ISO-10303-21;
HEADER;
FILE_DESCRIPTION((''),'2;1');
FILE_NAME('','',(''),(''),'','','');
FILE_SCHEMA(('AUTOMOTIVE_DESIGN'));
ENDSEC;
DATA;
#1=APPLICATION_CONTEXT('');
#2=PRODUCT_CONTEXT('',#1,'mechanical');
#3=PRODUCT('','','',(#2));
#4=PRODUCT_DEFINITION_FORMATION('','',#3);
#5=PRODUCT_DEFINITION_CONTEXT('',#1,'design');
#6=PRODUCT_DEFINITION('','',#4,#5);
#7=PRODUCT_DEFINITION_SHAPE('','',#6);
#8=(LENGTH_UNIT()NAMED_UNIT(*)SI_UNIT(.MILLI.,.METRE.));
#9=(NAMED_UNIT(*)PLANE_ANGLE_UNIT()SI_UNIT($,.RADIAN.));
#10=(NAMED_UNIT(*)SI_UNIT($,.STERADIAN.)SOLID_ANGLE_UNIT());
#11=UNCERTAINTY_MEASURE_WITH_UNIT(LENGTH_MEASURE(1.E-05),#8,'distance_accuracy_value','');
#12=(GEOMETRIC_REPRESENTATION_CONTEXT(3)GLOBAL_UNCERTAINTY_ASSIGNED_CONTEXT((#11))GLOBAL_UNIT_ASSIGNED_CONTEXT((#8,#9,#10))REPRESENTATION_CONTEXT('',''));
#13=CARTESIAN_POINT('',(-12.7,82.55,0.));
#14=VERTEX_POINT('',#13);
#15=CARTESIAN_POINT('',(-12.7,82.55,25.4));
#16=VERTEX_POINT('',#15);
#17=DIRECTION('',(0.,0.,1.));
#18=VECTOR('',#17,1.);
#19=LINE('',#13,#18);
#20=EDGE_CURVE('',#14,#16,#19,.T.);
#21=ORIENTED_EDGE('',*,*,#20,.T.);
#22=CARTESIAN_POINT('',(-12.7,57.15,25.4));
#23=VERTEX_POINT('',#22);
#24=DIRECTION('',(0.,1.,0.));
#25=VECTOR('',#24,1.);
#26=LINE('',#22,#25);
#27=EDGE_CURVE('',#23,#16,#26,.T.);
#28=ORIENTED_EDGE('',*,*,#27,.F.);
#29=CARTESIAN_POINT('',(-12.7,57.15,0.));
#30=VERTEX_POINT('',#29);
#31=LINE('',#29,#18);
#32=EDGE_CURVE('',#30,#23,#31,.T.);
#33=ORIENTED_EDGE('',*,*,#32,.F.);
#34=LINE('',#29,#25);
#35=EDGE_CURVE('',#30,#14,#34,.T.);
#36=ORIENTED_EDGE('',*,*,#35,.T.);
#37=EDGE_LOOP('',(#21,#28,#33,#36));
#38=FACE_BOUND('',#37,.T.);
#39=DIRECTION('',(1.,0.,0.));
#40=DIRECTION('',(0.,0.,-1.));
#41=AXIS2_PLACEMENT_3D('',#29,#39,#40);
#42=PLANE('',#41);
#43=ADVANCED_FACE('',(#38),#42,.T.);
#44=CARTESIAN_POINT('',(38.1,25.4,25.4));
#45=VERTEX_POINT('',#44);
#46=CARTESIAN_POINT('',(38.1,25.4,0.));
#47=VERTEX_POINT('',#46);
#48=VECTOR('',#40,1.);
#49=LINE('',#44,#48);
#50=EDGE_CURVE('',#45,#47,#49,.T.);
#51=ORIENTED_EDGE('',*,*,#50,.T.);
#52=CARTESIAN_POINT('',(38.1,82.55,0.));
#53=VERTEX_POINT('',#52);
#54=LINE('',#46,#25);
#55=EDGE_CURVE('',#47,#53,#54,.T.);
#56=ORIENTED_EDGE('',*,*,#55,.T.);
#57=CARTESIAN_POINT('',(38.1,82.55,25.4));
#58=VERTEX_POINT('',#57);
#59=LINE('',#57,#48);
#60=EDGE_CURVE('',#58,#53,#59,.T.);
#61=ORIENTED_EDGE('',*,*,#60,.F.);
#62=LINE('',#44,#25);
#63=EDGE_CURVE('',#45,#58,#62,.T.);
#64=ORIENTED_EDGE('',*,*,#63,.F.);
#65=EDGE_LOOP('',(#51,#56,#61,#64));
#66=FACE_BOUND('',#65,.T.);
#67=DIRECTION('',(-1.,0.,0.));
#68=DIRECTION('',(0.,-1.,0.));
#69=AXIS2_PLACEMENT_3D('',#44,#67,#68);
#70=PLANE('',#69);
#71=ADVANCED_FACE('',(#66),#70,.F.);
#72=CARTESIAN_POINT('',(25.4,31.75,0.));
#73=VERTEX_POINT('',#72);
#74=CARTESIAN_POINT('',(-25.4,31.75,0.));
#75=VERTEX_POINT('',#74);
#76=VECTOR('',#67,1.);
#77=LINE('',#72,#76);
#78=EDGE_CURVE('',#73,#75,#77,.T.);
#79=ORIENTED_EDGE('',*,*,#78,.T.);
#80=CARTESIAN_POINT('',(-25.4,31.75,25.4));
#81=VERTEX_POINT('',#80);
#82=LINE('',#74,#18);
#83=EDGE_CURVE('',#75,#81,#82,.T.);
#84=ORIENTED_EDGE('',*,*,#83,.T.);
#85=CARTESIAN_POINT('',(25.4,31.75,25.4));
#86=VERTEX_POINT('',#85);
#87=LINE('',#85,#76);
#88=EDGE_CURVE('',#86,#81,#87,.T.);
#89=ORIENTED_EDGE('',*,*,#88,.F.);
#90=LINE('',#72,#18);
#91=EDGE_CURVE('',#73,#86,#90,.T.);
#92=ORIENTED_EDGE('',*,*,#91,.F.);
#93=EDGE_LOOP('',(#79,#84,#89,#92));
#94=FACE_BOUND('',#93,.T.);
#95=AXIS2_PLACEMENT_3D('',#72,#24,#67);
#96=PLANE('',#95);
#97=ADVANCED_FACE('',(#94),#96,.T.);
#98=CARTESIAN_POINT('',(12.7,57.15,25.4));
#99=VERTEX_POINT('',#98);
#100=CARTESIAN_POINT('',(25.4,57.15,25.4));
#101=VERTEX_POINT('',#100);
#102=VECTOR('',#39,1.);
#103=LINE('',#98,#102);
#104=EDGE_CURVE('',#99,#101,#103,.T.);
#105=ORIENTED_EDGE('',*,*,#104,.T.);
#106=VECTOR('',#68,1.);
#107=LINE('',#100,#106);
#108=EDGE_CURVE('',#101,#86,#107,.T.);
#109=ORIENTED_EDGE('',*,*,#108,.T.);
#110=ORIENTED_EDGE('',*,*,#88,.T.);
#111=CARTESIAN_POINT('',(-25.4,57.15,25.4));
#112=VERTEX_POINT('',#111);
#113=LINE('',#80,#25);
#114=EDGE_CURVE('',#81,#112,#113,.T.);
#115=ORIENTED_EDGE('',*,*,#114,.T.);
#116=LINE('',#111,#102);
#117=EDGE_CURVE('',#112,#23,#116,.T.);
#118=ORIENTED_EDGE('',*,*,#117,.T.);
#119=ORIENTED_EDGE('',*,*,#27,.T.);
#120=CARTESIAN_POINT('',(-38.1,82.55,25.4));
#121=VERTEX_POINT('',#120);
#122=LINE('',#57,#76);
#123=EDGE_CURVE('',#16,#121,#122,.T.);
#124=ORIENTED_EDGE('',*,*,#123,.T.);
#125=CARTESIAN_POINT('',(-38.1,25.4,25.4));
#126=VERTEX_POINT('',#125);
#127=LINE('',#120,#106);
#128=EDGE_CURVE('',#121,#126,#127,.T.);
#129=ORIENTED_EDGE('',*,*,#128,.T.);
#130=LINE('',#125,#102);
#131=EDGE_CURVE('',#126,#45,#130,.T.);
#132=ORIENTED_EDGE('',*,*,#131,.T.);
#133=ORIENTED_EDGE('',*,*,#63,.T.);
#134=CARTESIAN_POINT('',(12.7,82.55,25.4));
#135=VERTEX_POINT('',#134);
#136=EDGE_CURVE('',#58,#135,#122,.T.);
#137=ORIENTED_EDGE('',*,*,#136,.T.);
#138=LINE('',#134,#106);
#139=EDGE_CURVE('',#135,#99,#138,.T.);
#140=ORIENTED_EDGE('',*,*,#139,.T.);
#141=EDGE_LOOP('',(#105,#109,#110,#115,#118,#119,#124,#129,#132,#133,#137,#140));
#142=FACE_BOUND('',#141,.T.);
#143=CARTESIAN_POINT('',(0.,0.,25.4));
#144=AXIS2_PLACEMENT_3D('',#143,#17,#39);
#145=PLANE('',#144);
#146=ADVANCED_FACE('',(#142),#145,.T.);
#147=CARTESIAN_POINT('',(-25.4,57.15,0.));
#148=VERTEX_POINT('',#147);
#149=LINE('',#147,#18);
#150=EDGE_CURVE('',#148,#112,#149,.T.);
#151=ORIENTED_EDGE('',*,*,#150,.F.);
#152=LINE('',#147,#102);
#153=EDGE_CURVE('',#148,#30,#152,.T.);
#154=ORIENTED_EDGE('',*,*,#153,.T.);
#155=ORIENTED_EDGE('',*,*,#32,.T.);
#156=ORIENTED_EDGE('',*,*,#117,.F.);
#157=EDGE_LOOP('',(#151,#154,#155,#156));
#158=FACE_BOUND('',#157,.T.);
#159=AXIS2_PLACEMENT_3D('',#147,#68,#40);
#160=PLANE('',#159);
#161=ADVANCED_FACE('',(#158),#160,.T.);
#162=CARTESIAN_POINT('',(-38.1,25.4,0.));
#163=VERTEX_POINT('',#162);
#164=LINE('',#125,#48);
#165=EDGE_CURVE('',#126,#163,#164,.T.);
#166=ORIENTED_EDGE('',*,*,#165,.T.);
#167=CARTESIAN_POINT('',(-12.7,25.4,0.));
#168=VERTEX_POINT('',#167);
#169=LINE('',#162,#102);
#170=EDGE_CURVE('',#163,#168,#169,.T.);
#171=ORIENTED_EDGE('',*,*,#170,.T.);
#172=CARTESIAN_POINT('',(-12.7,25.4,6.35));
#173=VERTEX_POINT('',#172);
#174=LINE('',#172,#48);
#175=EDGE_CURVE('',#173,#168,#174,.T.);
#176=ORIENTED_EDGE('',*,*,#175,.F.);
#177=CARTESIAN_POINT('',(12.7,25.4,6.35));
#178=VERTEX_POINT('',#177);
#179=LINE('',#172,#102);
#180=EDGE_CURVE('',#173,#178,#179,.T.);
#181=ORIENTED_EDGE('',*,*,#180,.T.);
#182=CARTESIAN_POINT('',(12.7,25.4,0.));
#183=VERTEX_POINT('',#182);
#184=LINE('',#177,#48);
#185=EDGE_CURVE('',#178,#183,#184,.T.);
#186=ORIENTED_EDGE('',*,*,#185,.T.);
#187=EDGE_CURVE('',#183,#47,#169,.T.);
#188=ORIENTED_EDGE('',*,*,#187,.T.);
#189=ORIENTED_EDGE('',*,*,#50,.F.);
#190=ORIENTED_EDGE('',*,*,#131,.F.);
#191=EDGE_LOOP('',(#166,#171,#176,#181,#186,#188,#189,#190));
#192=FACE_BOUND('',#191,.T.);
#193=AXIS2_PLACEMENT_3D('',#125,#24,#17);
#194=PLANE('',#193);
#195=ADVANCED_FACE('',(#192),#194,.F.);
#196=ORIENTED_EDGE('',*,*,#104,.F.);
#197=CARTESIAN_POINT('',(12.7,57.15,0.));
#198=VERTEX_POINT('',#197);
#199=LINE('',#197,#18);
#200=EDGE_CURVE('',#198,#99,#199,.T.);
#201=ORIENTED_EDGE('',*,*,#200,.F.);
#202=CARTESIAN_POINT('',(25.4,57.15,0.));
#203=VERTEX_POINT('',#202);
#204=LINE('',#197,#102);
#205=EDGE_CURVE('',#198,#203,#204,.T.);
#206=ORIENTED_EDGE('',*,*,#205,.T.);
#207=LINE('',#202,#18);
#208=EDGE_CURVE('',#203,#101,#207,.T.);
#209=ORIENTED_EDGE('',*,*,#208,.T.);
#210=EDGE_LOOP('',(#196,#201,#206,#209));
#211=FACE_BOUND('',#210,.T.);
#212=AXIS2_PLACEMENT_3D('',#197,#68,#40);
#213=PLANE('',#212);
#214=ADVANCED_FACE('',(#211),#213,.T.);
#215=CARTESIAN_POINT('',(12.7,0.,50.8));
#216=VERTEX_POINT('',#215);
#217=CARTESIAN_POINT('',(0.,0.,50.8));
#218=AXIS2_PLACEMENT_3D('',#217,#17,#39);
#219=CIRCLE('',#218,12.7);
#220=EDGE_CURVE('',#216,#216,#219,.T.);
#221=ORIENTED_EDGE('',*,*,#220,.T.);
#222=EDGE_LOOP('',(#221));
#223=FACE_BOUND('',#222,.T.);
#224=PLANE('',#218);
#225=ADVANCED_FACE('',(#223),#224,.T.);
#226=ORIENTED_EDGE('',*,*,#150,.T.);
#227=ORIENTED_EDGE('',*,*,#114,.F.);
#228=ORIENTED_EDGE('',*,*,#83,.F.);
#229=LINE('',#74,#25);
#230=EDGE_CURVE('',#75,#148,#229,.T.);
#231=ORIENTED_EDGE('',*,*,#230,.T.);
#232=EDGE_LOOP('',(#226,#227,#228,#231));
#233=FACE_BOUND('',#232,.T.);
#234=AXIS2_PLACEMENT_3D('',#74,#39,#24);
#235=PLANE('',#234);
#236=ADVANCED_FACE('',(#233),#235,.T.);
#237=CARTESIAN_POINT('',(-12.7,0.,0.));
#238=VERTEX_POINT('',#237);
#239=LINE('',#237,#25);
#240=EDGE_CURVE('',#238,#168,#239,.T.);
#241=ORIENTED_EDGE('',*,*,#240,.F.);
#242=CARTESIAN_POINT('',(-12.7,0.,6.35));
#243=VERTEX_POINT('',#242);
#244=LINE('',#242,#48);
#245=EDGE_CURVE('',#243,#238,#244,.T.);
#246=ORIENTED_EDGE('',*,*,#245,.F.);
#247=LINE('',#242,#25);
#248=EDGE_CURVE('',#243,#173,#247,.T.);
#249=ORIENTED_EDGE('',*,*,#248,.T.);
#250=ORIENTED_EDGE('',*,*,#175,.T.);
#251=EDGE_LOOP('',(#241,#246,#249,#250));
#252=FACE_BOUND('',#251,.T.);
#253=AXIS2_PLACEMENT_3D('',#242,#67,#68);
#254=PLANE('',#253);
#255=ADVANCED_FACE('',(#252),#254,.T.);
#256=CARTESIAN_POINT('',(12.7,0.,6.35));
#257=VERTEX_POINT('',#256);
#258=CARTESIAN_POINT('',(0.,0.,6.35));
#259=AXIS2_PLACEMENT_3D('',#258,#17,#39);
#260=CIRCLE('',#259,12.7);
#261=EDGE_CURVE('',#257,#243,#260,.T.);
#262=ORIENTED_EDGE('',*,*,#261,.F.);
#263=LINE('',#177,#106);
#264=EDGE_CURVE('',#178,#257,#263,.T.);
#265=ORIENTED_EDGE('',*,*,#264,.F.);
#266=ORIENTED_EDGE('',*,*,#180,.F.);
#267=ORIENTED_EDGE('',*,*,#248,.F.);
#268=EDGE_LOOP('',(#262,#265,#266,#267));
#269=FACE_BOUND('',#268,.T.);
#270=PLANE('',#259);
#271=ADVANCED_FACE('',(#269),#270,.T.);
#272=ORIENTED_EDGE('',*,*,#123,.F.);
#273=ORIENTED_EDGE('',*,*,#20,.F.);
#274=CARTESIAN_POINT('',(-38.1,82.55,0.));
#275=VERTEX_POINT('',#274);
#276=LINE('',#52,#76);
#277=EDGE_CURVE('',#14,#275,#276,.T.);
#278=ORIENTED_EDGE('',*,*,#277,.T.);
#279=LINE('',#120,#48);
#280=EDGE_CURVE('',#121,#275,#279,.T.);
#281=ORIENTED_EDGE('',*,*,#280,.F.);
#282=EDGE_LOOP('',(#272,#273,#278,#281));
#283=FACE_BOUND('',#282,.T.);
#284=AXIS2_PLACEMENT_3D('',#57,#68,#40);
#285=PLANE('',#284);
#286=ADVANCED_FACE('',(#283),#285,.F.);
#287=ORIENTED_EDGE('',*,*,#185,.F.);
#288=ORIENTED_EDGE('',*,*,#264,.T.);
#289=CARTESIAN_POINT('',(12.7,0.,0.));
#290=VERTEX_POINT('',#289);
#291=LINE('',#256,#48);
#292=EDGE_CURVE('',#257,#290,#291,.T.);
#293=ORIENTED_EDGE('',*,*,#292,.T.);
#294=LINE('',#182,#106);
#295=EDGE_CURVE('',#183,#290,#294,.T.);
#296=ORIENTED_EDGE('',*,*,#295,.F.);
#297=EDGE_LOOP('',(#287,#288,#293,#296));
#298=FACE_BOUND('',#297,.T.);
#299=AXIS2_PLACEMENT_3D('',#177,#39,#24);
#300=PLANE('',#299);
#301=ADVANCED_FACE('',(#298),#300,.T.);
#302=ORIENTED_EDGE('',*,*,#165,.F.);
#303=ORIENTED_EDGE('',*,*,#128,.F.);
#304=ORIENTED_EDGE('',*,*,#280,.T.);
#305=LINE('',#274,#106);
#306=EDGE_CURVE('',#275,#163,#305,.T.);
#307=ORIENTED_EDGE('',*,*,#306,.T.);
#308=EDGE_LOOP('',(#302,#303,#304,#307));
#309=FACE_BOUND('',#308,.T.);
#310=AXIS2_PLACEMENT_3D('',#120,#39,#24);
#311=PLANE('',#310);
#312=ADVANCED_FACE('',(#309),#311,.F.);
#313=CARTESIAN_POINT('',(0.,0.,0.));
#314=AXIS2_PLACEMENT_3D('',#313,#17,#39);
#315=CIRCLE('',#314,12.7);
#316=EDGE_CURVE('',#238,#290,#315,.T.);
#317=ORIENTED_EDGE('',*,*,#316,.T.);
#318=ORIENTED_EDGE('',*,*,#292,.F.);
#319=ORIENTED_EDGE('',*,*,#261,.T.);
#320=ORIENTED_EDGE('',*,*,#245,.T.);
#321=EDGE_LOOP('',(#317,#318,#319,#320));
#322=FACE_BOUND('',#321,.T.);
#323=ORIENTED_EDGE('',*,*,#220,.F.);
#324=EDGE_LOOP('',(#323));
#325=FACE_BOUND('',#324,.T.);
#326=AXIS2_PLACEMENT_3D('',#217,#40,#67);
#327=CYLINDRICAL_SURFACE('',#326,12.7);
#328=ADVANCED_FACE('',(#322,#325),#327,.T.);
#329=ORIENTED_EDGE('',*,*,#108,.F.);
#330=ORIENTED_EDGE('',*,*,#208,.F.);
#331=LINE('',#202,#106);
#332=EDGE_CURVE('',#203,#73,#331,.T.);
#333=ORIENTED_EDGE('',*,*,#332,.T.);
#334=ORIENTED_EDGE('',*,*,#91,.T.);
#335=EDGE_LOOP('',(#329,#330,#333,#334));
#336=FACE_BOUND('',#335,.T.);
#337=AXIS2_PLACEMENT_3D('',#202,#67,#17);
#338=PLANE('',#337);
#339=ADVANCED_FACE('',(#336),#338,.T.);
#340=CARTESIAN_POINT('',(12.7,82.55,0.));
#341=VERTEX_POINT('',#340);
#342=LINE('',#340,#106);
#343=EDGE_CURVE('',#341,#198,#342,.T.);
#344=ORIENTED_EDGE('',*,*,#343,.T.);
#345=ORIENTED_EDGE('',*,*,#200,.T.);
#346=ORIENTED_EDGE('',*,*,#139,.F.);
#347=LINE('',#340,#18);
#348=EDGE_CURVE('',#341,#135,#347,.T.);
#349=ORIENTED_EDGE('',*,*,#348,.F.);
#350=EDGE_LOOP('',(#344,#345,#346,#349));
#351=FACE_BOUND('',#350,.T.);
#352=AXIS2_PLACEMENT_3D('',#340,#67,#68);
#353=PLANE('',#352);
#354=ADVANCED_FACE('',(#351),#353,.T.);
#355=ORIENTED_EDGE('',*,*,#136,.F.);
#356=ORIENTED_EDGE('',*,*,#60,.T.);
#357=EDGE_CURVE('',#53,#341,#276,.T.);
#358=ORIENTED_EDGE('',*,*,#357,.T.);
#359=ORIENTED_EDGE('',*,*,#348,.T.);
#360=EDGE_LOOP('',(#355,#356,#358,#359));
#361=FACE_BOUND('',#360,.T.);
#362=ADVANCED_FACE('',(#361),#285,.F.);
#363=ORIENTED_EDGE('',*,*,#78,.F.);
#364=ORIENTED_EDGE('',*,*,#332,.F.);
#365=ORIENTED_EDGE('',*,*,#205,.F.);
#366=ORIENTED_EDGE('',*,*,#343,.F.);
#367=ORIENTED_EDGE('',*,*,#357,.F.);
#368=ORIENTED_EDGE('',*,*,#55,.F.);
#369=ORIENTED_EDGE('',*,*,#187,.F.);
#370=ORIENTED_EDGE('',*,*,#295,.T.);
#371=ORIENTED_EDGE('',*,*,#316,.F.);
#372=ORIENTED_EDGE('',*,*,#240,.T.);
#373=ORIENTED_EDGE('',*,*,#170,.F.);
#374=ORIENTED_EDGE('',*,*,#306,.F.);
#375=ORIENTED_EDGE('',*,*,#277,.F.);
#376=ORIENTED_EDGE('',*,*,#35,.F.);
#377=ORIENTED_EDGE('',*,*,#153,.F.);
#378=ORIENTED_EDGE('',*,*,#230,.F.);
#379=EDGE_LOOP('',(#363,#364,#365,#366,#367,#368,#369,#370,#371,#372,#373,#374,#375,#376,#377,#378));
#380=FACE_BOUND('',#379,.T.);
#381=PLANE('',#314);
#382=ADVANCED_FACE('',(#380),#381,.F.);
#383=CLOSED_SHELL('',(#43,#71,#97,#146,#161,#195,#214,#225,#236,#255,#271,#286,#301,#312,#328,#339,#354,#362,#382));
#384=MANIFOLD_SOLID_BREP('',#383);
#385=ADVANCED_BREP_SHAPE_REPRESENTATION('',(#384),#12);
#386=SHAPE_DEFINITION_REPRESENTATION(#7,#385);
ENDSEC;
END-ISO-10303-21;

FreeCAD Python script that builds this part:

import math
import FreeCAD as App
import Part
import Sketcher
from FreeCAD import Vector
Q = App.Units.Quantity

doc = App.newDocument("Part")
body = doc.addObject("PartDesign::Body", "Body")

# Sketch on XY plane
sketch1 = body.newObject("Sketcher::SketchObject", "Sketch")
sketch1.AttachmentSupport = (doc.getObject("XY_Plane"), [""])
sketch1.MapMode = "FlatFace"
sketch1.addGeometry([
    Part.LineSegment(Vector(-13, 25, 0), Vector(-13, 0, 0)),
    Part.ArcOfCircle(Part.Circle(Vector(0, 0, 0), Vector(0, 0, 1), 13), math.radians(0), math.radians(180)),
    Part.LineSegment(Vector(13, 0, 0), Vector(13, 25, 0)),
    Part.LineSegment(Vector(13, 25, 0), Vector(-13, 25, 0)),
], False)
sketch1.addConstraint([
    Sketcher.Constraint("Tangent", 0, 2, 1, 2),
    Sketcher.Constraint("Tangent", 1, 1, 2, 1),
    Sketcher.Constraint("Coincident", 2, 2, 3, 1),
    Sketcher.Constraint("Coincident", 3, 2, 0, 1),
    Sketcher.Constraint("Vertical", 0),
    Sketcher.Constraint("Vertical", 2),
    Sketcher.Constraint("Horizontal", 3),
    Sketcher.Constraint("Coincident", 1, 3, -1, 1),
    Sketcher.Constraint("Equal", 3, 0),
    Sketcher.Constraint("Radius", 1, Q("0.5 in")),
])
pad1 = body.newObject("PartDesign::Pad", "Pad")
pad1.Profile = sketch1
pad1.Length = Q("0.25 in")

# Sketch on XY plane
sketch2 = body.newObject("Sketcher::SketchObject", "Sketch001")
sketch2.AttachmentSupport = (doc.getObject("XY_Plane"), [""])
sketch2.MapMode = "FlatFace"
sketch2.addGeometry(Part.Circle(Vector(0, 0, 0), Vector(0, 0, 1), 13), False)
sketch2.addConstraint([
    Sketcher.Constraint("Coincident", 0, 3, -1, 1),
    Sketcher.Constraint("Diameter", 0, Q("1 in")),
])
pad2 = body.newObject("PartDesign::Pad", "Pad001")
pad2.Profile = sketch2
pad2.Length = Q("2 in")

# Sketch on XY plane
sketch3 = body.newObject("Sketcher::SketchObject", "Sketch002")
sketch3.AttachmentSupport = (doc.getObject("XY_Plane"), [""])
sketch3.MapMode = "FlatFace"
sketch3.addGeometry([
    Part.LineSegment(Vector(-38, 83, 0), Vector(-38, 25, 0)),
    Part.LineSegment(Vector(-38, 25, 0), Vector(38, 25, 0)),
    Part.LineSegment(Vector(38, 25, 0), Vector(38, 83, 0)),
    Part.LineSegment(Vector(38, 83, 0), Vector(-38, 83, 0)),
], False)
sketch3.addConstraint([
    Sketcher.Constraint("Coincident", 0, 2, 1, 1),
    Sketcher.Constraint("Coincident", 1, 2, 2, 1),
    Sketcher.Constraint("Coincident", 2, 2, 3, 1),
    Sketcher.Constraint("Coincident", 3, 2, 0, 1),
    Sketcher.Constraint("Vertical", 0),
    Sketcher.Constraint("Horizontal", 1),
    Sketcher.Constraint("Vertical", 2),
    Sketcher.Constraint("Horizontal", 3),
    Sketcher.Constraint("DistanceX", 1, 1, 1, 2, Q("3 in")),
    Sketcher.Constraint("DistanceY", -1, 1, 0, 2, Q("1 in")),
    Sketcher.Constraint("DistanceY", 0, 2, 0, 1, Q("2.25 in")),
    Sketcher.Constraint("DistanceX", 0, 2, -1, 1, Q("1.5 in")),
])
pad3 = body.newObject("PartDesign::Pad", "Pad002")
pad3.Profile = sketch3
pad3.Length = Q("1 in")

# Sketch on XY plane
sketch4 = body.newObject("Sketcher::SketchObject", "Sketch003")
sketch4.AttachmentSupport = (doc.getObject("XY_Plane"), [""])
sketch4.MapMode = "FlatFace"
sketch4.AttachmentOffset = App.Placement(Vector(0, 0, 1 * 25.4), App.Rotation())
sketch4.addGeometry([
    Part.LineSegment(Vector(13, 57, 0), Vector(13, 83, 0)),  # 0
    Part.LineSegment(Vector(13, 83, 0), Vector(-13, 83, 0)),  # 1
    Part.LineSegment(Vector(-13, 83, 0), Vector(-13, 57, 0)),  # 2
    Part.LineSegment(Vector(-13, 57, 0), Vector(-25, 57, 0)),  # 3
    Part.LineSegment(Vector(-25, 57, 0), Vector(-25, 32, 0)),  # 4
    Part.LineSegment(Vector(-25, 32, 0), Vector(25, 32, 0)),  # 5
    Part.LineSegment(Vector(25, 32, 0), Vector(25, 57, 0)),  # 6
    Part.LineSegment(Vector(25, 57, 0), Vector(13, 57, 0)),  # 7
], False)
sketch4.addConstraint([
    Sketcher.Constraint("Coincident", 0, 2, 1, 1),
    Sketcher.Constraint("Coincident", 1, 2, 2, 1),
    Sketcher.Constraint("Coincident", 2, 2, 3, 1),
    Sketcher.Constraint("Coincident", 3, 2, 4, 1),
    Sketcher.Constraint("Coincident", 4, 2, 5, 1),
    Sketcher.Constraint("Coincident", 5, 2, 6, 1),
    Sketcher.Constraint("Coincident", 6, 2, 7, 1),
    Sketcher.Constraint("Coincident", 7, 2, 0, 1),
    Sketcher.Constraint("Vertical", 0),
    Sketcher.Constraint("Horizontal", 1),
    Sketcher.Constraint("Vertical", 2),
    Sketcher.Constraint("Horizontal", 3),
    Sketcher.Constraint("Vertical", 4),
    Sketcher.Constraint("Horizontal", 5),
    Sketcher.Constraint("Vertical", 6),
    Sketcher.Constraint("Horizontal", 7),
    Sketcher.Constraint("Symmetric", 3, 2, 6, 2, -2),
    Sketcher.Constraint("Equal", 3, 7),
    Sketcher.Constraint("Equal", 1, 0),
    Sketcher.Constraint("Equal", 2, 4),
    Sketcher.Constraint("DistanceX", 1, 2, 1, 1, Q("1 in")),
    Sketcher.Constraint("DistanceX", 5, 1, 5, 2, Q("2 in")),
    Sketcher.Constraint("DistanceY", -1, 1, 0, 2, Q("3.25 in")),
])
pocket1 = body.newObject("PartDesign::Pocket", "Pocket")
pocket1.Profile = sketch4
pocket1.Type = "ThroughAll"

doc.recompute()
